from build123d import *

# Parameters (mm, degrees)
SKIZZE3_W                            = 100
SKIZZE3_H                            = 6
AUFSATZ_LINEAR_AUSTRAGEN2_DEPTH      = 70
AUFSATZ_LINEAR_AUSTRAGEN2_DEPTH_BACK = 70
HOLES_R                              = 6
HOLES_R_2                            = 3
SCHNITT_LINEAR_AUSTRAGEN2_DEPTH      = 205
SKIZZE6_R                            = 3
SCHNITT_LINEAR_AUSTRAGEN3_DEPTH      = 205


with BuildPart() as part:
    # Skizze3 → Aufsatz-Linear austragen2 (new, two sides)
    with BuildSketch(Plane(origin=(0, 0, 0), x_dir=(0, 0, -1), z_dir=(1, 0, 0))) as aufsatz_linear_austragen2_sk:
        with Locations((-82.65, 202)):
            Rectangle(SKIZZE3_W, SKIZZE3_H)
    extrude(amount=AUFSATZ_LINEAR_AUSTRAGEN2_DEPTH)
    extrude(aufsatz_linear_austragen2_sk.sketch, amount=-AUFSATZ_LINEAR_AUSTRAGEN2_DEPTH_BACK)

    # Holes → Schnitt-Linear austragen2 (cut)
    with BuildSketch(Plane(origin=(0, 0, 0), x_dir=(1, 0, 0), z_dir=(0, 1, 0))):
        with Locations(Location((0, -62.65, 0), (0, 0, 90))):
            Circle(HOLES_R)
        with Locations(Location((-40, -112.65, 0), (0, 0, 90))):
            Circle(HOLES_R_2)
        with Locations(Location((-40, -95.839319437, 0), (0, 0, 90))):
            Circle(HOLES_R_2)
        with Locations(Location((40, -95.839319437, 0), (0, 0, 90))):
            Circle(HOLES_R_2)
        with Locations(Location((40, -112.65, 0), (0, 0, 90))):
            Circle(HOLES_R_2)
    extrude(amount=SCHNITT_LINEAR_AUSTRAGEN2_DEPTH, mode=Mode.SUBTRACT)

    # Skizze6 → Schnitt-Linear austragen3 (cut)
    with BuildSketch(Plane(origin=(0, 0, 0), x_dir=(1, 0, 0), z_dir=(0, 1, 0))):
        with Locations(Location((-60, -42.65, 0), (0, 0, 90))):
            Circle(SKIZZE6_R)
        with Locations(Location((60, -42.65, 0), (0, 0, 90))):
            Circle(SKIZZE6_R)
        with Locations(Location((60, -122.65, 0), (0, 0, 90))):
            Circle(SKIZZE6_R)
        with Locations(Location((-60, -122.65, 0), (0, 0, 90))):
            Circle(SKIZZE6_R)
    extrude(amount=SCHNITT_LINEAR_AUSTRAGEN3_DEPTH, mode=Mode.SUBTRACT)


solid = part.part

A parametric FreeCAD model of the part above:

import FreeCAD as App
import Part
import Sketcher
from FreeCAD import Vector

doc = App.newDocument("Part")
body = doc.addObject("PartDesign::Body", "Body")

# Sketch on YZ plane
sketch1 = body.newObject("Sketcher::SketchObject", "Sketch")
sketch1.AttachmentSupport = (doc.getObject("YZ_Plane"), [""])
sketch1.MapMode = "FlatFace"
sketch1.addGeometry(Part.LineSegment(Vector(205, 132.65, 0), Vector(199, 132.65, 0)), False)
sketch1.addGeometry(Part.LineSegment(Vector(199, 132.65, 0), Vector(199, 32.65, 0)), False)
sketch1.addGeometry(Part.LineSegment(Vector(199, 32.65, 0), Vector(205, 32.65, 0)), False)
sketch1.addGeometry(Part.LineSegment(Vector(205, 32.65, 0), Vector(205, 132.65, 0)), False)
sketch1.addConstraint(Sketcher.Constraint("Coincident", 0, 2, 1, 1))
sketch1.addConstraint(Sketcher.Constraint("Coincident", 1, 2, 2, 1))
sketch1.addConstraint(Sketcher.Constraint("Coincident", 2, 2, 3, 1))
sketch1.addConstraint(Sketcher.Constraint("Coincident", 3, 2, 0, 1))
sketch1.addConstraint(Sketcher.Constraint("Horizontal", 0))
sketch1.addConstraint(Sketcher.Constraint("Vertical", 1))
sketch1.addConstraint(Sketcher.Constraint("Horizontal", 2))
sketch1.addConstraint(Sketcher.Constraint("Vertical", 3))
sketch1.addConstraint(Sketcher.Constraint("DistanceX", 0, 2, 0, 1, 6.0))
sketch1.addConstraint(Sketcher.Constraint("DistanceY", 1, 2, 1, 1, 100.0))
sketch1.addConstraint(Sketcher.Constraint("DistanceX", -1, 1, 0, 2, 199.0))
sketch1.addConstraint(Sketcher.Constraint("DistanceY", -1, 1, 0, 2, 132.65))
pad1 = body.newObject("PartDesign::Pad", "Pad")
pad1.Profile = sketch1
pad1.Type = "TwoLengths"
pad1.Length = 70
pad1.Length2 = 70

# Sketch on XZ plane
sketch2 = body.newObject("Sketcher::SketchObject", "Sketch001")
sketch2.AttachmentSupport = (doc.getObject("XZ_Plane"), [""])
sketch2.MapMode = "FlatFace"
sketch2.addGeometry(Part.Circle(Vector(0, 62.65, 0), Vector(0, 0, 1), 6), False)
sketch2.addGeometry(Part.Circle(Vector(-40, 112.65, 0), Vector(0, 0, 1), 3), False)
sketch2.addGeometry(Part.Circle(Vector(-40, 95.839319, 0), Vector(0, 0, 1), 3), False)
sketch2.addGeometry(Part.Circle(Vector(40, 95.839319, 0), Vector(0, 0, 1), 3), False)
sketch2.addGeometry(Part.Circle(Vector(40, 112.65, 0), Vector(0, 0, 1), 3), False)
sketch2.addConstraint(Sketcher.Constraint("Equal", 1, 2))
sketch2.addConstraint(Sketcher.Constraint("Equal", 2, 3))
sketch2.addConstraint(Sketcher.Constraint("Equal", 3, 4))
sketch2.addConstraint(Sketcher.Constraint("Symmetric", 2, 3, 3, 3, -2))
sketch2.addConstraint(Sketcher.Constraint("Symmetric", 1, 3, 4, 3, -2))
sketch2.addConstraint(Sketcher.Constraint("PointOnObject", 0, 3, -2))
sketch2.addConstraint(Sketcher.Constraint("Vertical", 1, 3, 2, 3))
sketch2.addConstraint(Sketcher.Constraint("Diameter", 0, 12.0))
sketch2.addConstraint(Sketcher.Constraint("Diameter", 1, 6.0))
sketch2.addConstraint(Sketcher.Constraint("DistanceX", 1, 3, -1, 1, 40.0))
sketch2.addConstraint(Sketcher.Constraint("DistanceY", 0, 3, 1, 3, 50.0))
sketch2.addConstraint(Sketcher.Constraint("DistanceY", -1, 1, 0, 3, 62.65))
sketch2.addConstraint(Sketcher.Constraint("DistanceY", -1, 1, 2, 3, 95.839319))
pocket1 = body.newObject("PartDesign::Pocket", "Pocket")
pocket1.Profile = sketch2
pocket1.Length = 205

# Sketch on XZ plane
sketch3 = body.newObject("Sketcher::SketchObject", "Sketch002")
sketch3.AttachmentSupport = (doc.getObject("XZ_Plane"), [""])
sketch3.MapMode = "FlatFace"
sketch3.addGeometry(Part.Circle(Vector(-60, 42.65, 0), Vector(0, 0, 1), 3), False)
sketch3.addGeometry(Part.Circle(Vector(60, 42.65, 0), Vector(0, 0, 1), 3), False)
sketch3.addGeometry(Part.Circle(Vector(60, 122.65, 0), Vector(0, 0, 1), 3), False)
sketch3.addGeometry(Part.Circle(Vector(-60, 122.65, 0), Vector(0, 0, 1), 3), False)
sketch3.addConstraint(Sketcher.Constraint("Equal", 0, 1))
sketch3.addConstraint(Sketcher.Constraint("Equal", 1, 2))
sketch3.addConstraint(Sketcher.Constraint("Equal", 2, 3))
sketch3.addConstraint(Sketcher.Constraint("Symmetric", 0, 3, 1, 3, -2))
sketch3.addConstraint(Sketcher.Constraint("Symmetric", 2, 3, 3, 3, -2))
sketch3.addConstraint(Sketcher.Constraint("Vertical", 1, 3, 2, 3))
sketch3.addConstraint(Sketcher.Constraint("Diameter", 0, 6.0))
sketch3.addConstraint(Sketcher.Constraint("DistanceX", 0, 3, -1, 1, 60.0))
sketch3.addConstraint(Sketcher.Constraint("DistanceY", 1, 3, 2, 3, 80.0))
sketch3.addConstraint(Sketcher.Constraint("DistanceY", -1, 1, 0, 3, 42.65))
pocket2 = body.newObject("PartDesign::Pocket", "Pocket001")
pocket2.Profile = sketch3
pocket2.Length = 205

doc.recompute()
